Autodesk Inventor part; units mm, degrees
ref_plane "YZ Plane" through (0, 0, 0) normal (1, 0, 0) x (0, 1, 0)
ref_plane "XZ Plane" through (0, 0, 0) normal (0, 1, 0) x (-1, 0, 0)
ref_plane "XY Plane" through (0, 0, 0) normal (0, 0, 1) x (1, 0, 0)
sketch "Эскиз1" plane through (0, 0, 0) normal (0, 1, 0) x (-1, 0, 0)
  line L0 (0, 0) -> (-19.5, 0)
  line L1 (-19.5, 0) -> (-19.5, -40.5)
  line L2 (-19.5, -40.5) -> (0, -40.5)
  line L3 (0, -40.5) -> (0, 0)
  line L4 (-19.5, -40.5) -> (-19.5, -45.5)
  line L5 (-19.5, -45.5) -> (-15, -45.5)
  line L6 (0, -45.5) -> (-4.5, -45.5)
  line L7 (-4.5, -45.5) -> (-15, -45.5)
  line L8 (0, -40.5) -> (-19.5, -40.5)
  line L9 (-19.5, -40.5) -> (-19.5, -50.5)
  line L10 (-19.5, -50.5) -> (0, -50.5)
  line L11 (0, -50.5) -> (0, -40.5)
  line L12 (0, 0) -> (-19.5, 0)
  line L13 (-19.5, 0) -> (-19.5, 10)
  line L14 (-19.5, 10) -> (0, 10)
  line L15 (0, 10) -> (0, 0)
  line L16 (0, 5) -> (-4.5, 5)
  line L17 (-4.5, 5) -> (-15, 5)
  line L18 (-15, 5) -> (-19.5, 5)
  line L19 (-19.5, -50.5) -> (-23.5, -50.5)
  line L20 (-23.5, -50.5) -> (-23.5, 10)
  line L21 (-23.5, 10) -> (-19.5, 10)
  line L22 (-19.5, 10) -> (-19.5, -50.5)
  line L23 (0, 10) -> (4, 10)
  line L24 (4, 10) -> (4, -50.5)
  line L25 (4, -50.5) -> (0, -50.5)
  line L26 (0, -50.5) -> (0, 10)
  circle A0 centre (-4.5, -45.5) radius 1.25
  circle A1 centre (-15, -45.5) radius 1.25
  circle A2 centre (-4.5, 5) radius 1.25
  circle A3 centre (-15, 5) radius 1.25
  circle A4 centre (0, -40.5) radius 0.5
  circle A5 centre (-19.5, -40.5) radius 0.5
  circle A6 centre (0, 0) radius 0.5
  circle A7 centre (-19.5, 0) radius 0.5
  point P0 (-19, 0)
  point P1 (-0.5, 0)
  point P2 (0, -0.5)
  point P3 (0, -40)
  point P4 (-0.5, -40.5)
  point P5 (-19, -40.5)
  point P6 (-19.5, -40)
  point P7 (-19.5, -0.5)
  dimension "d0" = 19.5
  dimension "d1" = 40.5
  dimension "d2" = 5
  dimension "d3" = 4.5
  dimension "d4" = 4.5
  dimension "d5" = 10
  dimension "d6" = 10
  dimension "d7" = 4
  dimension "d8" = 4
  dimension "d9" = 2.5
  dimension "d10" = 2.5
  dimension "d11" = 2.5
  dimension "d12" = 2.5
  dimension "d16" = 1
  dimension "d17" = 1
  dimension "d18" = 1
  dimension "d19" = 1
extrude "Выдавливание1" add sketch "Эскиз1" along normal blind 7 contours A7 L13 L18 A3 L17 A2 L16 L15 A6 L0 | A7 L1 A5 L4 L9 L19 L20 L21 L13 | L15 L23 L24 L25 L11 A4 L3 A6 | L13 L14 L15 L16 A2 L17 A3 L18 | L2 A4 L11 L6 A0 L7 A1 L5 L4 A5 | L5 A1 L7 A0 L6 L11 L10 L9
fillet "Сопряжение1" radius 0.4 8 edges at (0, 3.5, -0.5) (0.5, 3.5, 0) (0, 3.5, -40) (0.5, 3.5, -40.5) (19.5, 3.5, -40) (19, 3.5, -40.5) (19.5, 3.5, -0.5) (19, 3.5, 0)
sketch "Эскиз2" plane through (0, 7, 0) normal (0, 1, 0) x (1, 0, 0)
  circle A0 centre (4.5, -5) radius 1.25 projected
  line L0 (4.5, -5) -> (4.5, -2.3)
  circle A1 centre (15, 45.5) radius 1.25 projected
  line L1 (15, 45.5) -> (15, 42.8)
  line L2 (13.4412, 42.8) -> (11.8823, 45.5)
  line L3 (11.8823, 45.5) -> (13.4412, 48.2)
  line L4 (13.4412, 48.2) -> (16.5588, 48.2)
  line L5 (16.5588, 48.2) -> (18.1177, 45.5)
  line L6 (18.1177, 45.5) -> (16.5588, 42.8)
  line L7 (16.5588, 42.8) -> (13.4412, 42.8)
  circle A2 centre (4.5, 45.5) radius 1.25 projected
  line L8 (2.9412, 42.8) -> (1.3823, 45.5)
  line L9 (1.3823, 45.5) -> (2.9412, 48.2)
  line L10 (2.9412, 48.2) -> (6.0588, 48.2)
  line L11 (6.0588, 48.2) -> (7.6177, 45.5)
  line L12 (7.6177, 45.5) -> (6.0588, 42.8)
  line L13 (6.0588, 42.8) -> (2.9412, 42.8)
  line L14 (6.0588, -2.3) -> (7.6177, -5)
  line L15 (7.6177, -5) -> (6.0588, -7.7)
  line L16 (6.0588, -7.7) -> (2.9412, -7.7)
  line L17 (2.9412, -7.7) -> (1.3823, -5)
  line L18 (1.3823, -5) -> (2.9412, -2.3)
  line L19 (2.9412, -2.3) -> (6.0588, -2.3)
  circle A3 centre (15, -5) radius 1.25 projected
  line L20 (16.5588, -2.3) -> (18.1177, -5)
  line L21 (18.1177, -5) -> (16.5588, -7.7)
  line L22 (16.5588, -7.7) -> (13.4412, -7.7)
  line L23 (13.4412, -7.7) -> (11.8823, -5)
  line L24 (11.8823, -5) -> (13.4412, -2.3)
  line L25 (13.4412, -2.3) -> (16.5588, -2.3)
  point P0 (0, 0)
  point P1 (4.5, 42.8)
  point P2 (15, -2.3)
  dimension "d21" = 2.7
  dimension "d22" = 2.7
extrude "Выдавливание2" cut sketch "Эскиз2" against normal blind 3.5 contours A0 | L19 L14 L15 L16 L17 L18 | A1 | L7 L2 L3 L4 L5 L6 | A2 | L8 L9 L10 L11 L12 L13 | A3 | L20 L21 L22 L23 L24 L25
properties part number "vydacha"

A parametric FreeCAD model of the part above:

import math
import FreeCAD as App
import Part
import Sketcher
from FreeCAD import Vector
Q = App.Units.Quantity


def edges_at(feature, points):
    """Names of the edges that pass closest to the given points."""
    edges = feature.Shape.Edges
    near = lambda p: min(range(len(edges)), key=lambda i: edges[i].distToShape(Part.Vertex(*p))[0])
    return sorted({f"Edge{near(p) + 1}" for p in points})

doc = App.newDocument("Part")
body = doc.addObject("PartDesign::Body", "Body")

sketch1 = doc.addObject("Sketcher::SketchObject", "Sketch")
body.addObject(sketch1)
sketch1.AttachmentSupport = (doc.XZ_Plane, [""])
sketch1.MapMode = "FlatFace"
sketch1.addGeometry(Part.LineSegment(Vector(23.5, -50.5, 0), Vector(-4, -50.5, 0)), False)
sketch1.addGeometry(Part.LineSegment(Vector(-4, -50.5, 0), Vector(-4, 10, 0)), False)
sketch1.addGeometry(Part.LineSegment(Vector(-4, 10, 0), Vector(23.5, 10, 0)), False)
sketch1.addGeometry(Part.LineSegment(Vector(23.5, 10, 0), Vector(23.5, -50.5, 0)), False)
sketch1.addGeometry(Part.LineSegment(Vector(19, 0, 0), Vector(0.5, 0, 0)), False)
sketch1.addGeometry(Part.ArcOfCircle(Part.Circle(Vector(0, 0, 0), Vector(0, 0, 1), 0.5), math.radians(0), math.radians(270)), False)
sketch1.addGeometry(Part.LineSegment(Vector(0, -0.5, 0), Vector(0, -40, 0)), False)
sketch1.addGeometry(Part.ArcOfCircle(Part.Circle(Vector(0, -40.5, 0), Vector(0, 0, 1), 0.5), math.radians(90), math.radians(360)), False)
sketch1.addGeometry(Part.LineSegment(Vector(0.5, -40.5, 0), Vector(19, -40.5, 0)), False)
sketch1.addGeometry(Part.ArcOfCircle(Part.Circle(Vector(19.5, -40.5, 0), Vector(0, 0, 1), 0.5), math.radians(180), math.radians(450)), False)
sketch1.addGeometry(Part.LineSegment(Vector(19.5, -40, 0), Vector(19.5, -0.5, 0)), False)
sketch1.addGeometry(Part.ArcOfCircle(Part.Circle(Vector(19.5, 0, 0), Vector(0, 0, 1), 0.5), math.radians(-90), math.radians(180)), False)
sketch1.addGeometry(Part.Circle(Vector(15, 5, 0), Vector(0, 0, 1), 1.25), False)
sketch1.addGeometry(Part.Circle(Vector(4.5, 5, 0), Vector(0, 0, 1), 1.25), False)
sketch1.addGeometry(Part.Circle(Vector(4.5, -45.5, 0), Vector(0, 0, 1), 1.25), False)
sketch1.addGeometry(Part.Circle(Vector(15, -45.5, 0), Vector(0, 0, 1), 1.25), False)
sketch1.addConstraint(Sketcher.Constraint("Coincident", 0, 2, 1, 1))
sketch1.addConstraint(Sketcher.Constraint("Coincident", 1, 2, 2, 1))
sketch1.addConstraint(Sketcher.Constraint("Coincident", 2, 2, 3, 1))
sketch1.addConstraint(Sketcher.Constraint("Coincident", 3, 2, 0, 1))
sketch1.addConstraint(Sketcher.Constraint("Coincident", 4, 2, 5, 1))
sketch1.addConstraint(Sketcher.Constraint("Coincident", 5, 2, 6, 1))
sketch1.addConstraint(Sketcher.Constraint("Coincident", 6, 2, 7, 1))
sketch1.addConstraint(Sketcher.Constraint("Coincident", 7, 2, 8, 1))
sketch1.addConstraint(Sketcher.Constraint("Coincident", 8, 2, 9, 1))
sketch1.addConstraint(Sketcher.Constraint("Coincident", 9, 2, 10, 1))
sketch1.addConstraint(Sketcher.Constraint("Coincident", 10, 2, 11, 1))
sketch1.addConstraint(Sketcher.Constraint("Coincident", 11, 2, 4, 1))
sketch1.addConstraint(Sketcher.Constraint("Horizontal", 0))
sketch1.addConstraint(Sketcher.Constraint("Vertical", 1))
sketch1.addConstraint(Sketcher.Constraint("Horizontal", 2))
sketch1.addConstraint(Sketcher.Constraint("Vertical", 3))
sketch1.addConstraint(Sketcher.Constraint("Horizontal", 4))
sketch1.addConstraint(Sketcher.Constraint("Vertical", 6))
sketch1.addConstraint(Sketcher.Constraint("Horizontal", 8))
sketch1.addConstraint(Sketcher.Constraint("Vertical", 10))
sketch1.addConstraint(Sketcher.Constraint("Coincident", 5, 3, -1, 1))
sketch1.addConstraint(Sketcher.Constraint("Equal", 5, 7))
sketch1.addConstraint(Sketcher.Constraint("Equal", 7, 9))
sketch1.addConstraint(Sketcher.Constraint("Equal", 9, 11))
sketch1.addConstraint(Sketcher.Constraint("Equal", 12, 13))
sketch1.addConstraint(Sketcher.Constraint("Equal", 13, 14))
sketch1.addConstraint(Sketcher.Constraint("Equal", 14, 15))
sketch1.addConstraint(Sketcher.Constraint("PointOnObject", 7, 3, -2))
sketch1.addConstraint(Sketcher.Constraint("PointOnObject", 11, 3, -1))
sketch1.addConstraint(Sketcher.Constraint("PointOnObject", 4, 2, -1))
sketch1.addConstraint(Sketcher.Constraint("PointOnObject", 5, 2, -2))
sketch1.addConstraint(Sketcher.Constraint("Horizontal", 7, 3, 9, 3))
sketch1.addConstraint(Sketcher.Constraint("Horizontal", 12, 3, 13, 3))
sketch1.addConstraint(Sketcher.Constraint("Horizontal", 14, 3, 15, 3))
sketch1.addConstraint(Sketcher.Constraint("Horizontal", 9, 3, 7, 2))
sketch1.addConstraint(Sketcher.Constraint("Vertical", 9, 3, 11, 3))
sketch1.addConstraint(Sketcher.Constraint("Vertical", 13, 3, 14, 3))
sketch1.addConstraint(Sketcher.Constraint("Vertical", 12, 3, 15, 3))
sketch1.addConstraint(Sketcher.Constraint("Vertical", 11, 3, 9, 2))
sketch1.addConstraint(Sketcher.Constraint("Diameter", 12, 2.5))
sketch1.addConstraint(Sketcher.Constraint("Radius", 5, 0.5))
sketch1.addConstraint(Sketcher.Constraint("DistanceY", -1, 1, 12, 3, 5.0))
sketch1.addConstraint(Sketcher.Constraint("DistanceX", 0, 2, -1, 1, 4.0))
sketch1.addConstraint(Sketcher.Constraint("DistanceY", -1, 1, 1, 2, 10.0))
sketch1.addConstraint(Sketcher.Constraint("DistanceY", 14, 3, 7, 3, 5.0))
sketch1.addConstraint(Sketcher.Constraint("DistanceY", 0, 2, 14, 3, 5.0))
sketch1.addConstraint(Sketcher.Constraint("DistanceX", 11, 3, 2, 2, 4.0))
sketch1.addConstraint(Sketcher.Constraint("DistanceX", 4, 2, 13, 3, 4.0))
sketch1.addConstraint(Sketcher.Constraint("DistanceX", 15, 3, 8, 2, 4.0))
sketch1.addConstraint(Sketcher.Constraint("DistanceY", 7, 3, -1, 1, 40.5))
sketch1.addConstraint(Sketcher.Constraint("DistanceX", -1, 1, 9, 3, 19.5))
pad1 = doc.addObject("PartDesign::Pad", "Pad")
body.addObject(pad1)
pad1.Profile = sketch1
pad1.Length = 7
pad1.Reversed = True
doc.recompute()

fillet = doc.addObject("PartDesign::Fillet", "Fillet")
body.addObject(fillet)
fillet.Base = (pad1, edges_at(pad1, [
    (0, 3.5, -0.5),
    (0.5, 3.5, 0),
    (0, 3.5, -40),
    (0.5, 3.5, -40.5),
    (19.5, 3.5, -40),
    (19, 3.5, -40.5),
    (19.5, 3.5, -0.5),
    (19, 3.5, 0),
]))
fillet.Radius = 0.4

sketch2 = doc.addObject("Sketcher::SketchObject", "Sketch001")
body.addObject(sketch2)
sketch2.AttachmentSupport = (doc.XZ_Plane, [""])
sketch2.MapMode = "FlatFace"
sketch2.AttachmentOffset = App.Placement(Vector(0, 0, -7), App.Rotation())
sketch2.addGeometry(Part.LineSegment(Vector(6.0588, 2.3, 0), Vector(4.5, 2.3, 0)), False)
sketch2.addGeometry(Part.LineSegment(Vector(4.5, 2.3, 0), Vector(2.9412, 2.3, 0)), False)
sketch2.addGeometry(Part.LineSegment(Vector(2.9412, 2.3, 0), Vector(1.3823, 5, 0)), False)
sketch2.addGeometry(Part.LineSegment(Vector(1.3823, 5, 0), Vector(2.9412, 7.7, 0)), False)
sketch2.addGeometry(Part.LineSegment(Vector(2.9412, 7.7, 0), Vector(6.0588, 7.7, 0)), False)
sketch2.addGeometry(Part.LineSegment(Vector(6.0588, 7.7, 0), Vector(7.6177, 5, 0)), False)
sketch2.addGeometry(Part.LineSegment(Vector(7.6177, 5, 0), Vector(6.0588, 2.3, 0)), False)
sketch2.addGeometry(Part.LineSegment(Vector(13.4412, -42.8, 0), Vector(15, -42.8, 0)), False)
sketch2.addGeometry(Part.LineSegment(Vector(15, -42.8, 0), Vector(16.5588, -42.8, 0)), False)
sketch2.addGeometry(Part.LineSegment(Vector(16.5588, -42.8, 0), Vector(18.1177, -45.5, 0)), False)
sketch2.addGeometry(Part.LineSegment(Vector(18.1177, -45.5, 0), Vector(16.5588, -48.2, 0)), False)
sketch2.addGeometry(Part.LineSegment(Vector(16.5588, -48.2, 0), Vector(13.4412, -48.2, 0)), False)
sketch2.addGeometry(Part.LineSegment(Vector(13.4412, -48.2, 0), Vector(11.8823, -45.5, 0)), False)
sketch2.addGeometry(Part.LineSegment(Vector(11.8823, -45.5, 0), Vector(13.4412, -42.8, 0)), False)
sketch2.addGeometry(Part.LineSegment(Vector(1.3823, -45.5, 0), Vector(2.9412, -42.8, 0)), False)
sketch2.addGeometry(Part.LineSegment(Vector(2.9412, -42.8, 0), Vector(6.0588, -42.8, 0)), False)
sketch2.addGeometry(Part.LineSegment(Vector(6.0588, -42.8, 0), Vector(7.6177, -45.5, 0)), False)
sketch2.addGeometry(Part.LineSegment(Vector(7.6177, -45.5, 0), Vector(6.0588, -48.2, 0)), False)
sketch2.addGeometry(Part.LineSegment(Vector(6.0588, -48.2, 0), Vector(2.9412, -48.2, 0)), False)
sketch2.addGeometry(Part.LineSegment(Vector(2.9412, -48.2, 0), Vector(1.3823, -45.5, 0)), False)
sketch2.addGeometry(Part.LineSegment(Vector(18.1177, 5, 0), Vector(16.5588, 2.3, 0)), False)
sketch2.addGeometry(Part.LineSegment(Vector(16.5588, 2.3, 0), Vector(13.4412, 2.3, 0)), False)
sketch2.addGeometry(Part.LineSegment(Vector(13.4412, 2.3, 0), Vector(11.8823, 5, 0)), False)
sketch2.addGeometry(Part.LineSegment(Vector(11.8823, 5, 0), Vector(13.4412, 7.7, 0)), False)
sketch2.addGeometry(Part.LineSegment(Vector(13.4412, 7.7, 0), Vector(16.5588, 7.7, 0)), False)
sketch2.addGeometry(Part.LineSegment(Vector(16.5588, 7.7, 0), Vector(18.1177, 5, 0)), False)
sketch2.addConstraint(Sketcher.Constraint("Coincident", 0, 2, 1, 1))
sketch2.addConstraint(Sketcher.Constraint("Coincident", 1, 2, 2, 1))
sketch2.addConstraint(Sketcher.Constraint("Coincident", 2, 2, 3, 1))
sketch2.addConstraint(Sketcher.Constraint("Coincident", 3, 2, 4, 1))
sketch2.addConstraint(Sketcher.Constraint("Coincident", 4, 2, 5, 1))
sketch2.addConstraint(Sketcher.Constraint("Coincident", 5, 2, 6, 1))
sketch2.addConstraint(Sketcher.Constraint("Coincident", 6, 2, 0, 1))
sketch2.addConstraint(Sketcher.Constraint("Coincident", 7, 2, 8, 1))
sketch2.addConstraint(Sketcher.Constraint("Coincident", 8, 2, 9, 1))
sketch2.addConstraint(Sketcher.Constraint("Coincident", 9, 2, 10, 1))
sketch2.addConstraint(Sketcher.Constraint("Coincident", 10, 2, 11, 1))
sketch2.addConstraint(Sketcher.Constraint("Coincident", 11, 2, 12, 1))
sketch2.addConstraint(Sketcher.Constraint("Coincident", 12, 2, 13, 1))
sketch2.addConstraint(Sketcher.Constraint("Coincident", 13, 2, 7, 1))
sketch2.addConstraint(Sketcher.Constraint("Coincident", 14, 2, 15, 1))
sketch2.addConstraint(Sketcher.Constraint("Coincident", 15, 2, 16, 1))
sketch2.addConstraint(Sketcher.Constraint("Coincident", 16, 2, 17, 1))
sketch2.addConstraint(Sketcher.Constraint("Coincident", 17, 2, 18, 1))
sketch2.addConstraint(Sketcher.Constraint("Coincident", 18, 2, 19, 1))
sketch2.addConstraint(Sketcher.Constraint("Coincident", 19, 2, 14, 1))
sketch2.addConstraint(Sketcher.Constraint("Coincident", 20, 2, 21, 1))
sketch2.addConstraint(Sketcher.Constraint("Coincident", 21, 2, 22, 1))
sketch2.addConstraint(Sketcher.Constraint("Coincident", 22, 2, 23, 1))
sketch2.addConstraint(Sketcher.Constraint("Coincident", 23, 2, 24, 1))
sketch2.addConstraint(Sketcher.Constraint("Coincident", 24, 2, 25, 1))
sketch2.addConstraint(Sketcher.Constraint("Coincident", 25, 2, 20, 1))
sketch2.addConstraint(Sketcher.Constraint("Horizontal", 0))
sketch2.addConstraint(Sketcher.Constraint("Horizontal", 1))
sketch2.addConstraint(Sketcher.Constraint("Horizontal", 4))
sketch2.addConstraint(Sketcher.Constraint("Horizontal", 7))
sketch2.addConstraint(Sketcher.Constraint("Horizontal", 8))
sketch2.addConstraint(Sketcher.Constraint("Horizontal", 11))
sketch2.addConstraint(Sketcher.Constraint("Horizontal", 15))
sketch2.addConstraint(Sketcher.Constraint("Horizontal", 18))
sketch2.addConstraint(Sketcher.Constraint("Horizontal", 21))
sketch2.addConstraint(Sketcher.Constraint("Horizontal", 24))
sketch2.addConstraint(Sketcher.Constraint("Parallel", 2, 5))
sketch2.addConstraint(Sketcher.Constraint("Parallel", 3, 6))
sketch2.addConstraint(Sketcher.Constraint("Parallel", 5, 9))
sketch2.addConstraint(Sketcher.Constraint("Parallel", 6, 10))
sketch2.addConstraint(Sketcher.Constraint("Parallel", 9, 12))
sketch2.addConstraint(Sketcher.Constraint("Parallel", 10, 13))
sketch2.addConstraint(Sketcher.Constraint("Parallel", 13, 14))
sketch2.addConstraint(Sketcher.Constraint("Parallel", 12, 16))
sketch2.addConstraint(Sketcher.Constraint("Parallel", 14, 17))
sketch2.addConstraint(Sketcher.Constraint("Parallel", 16, 19))
sketch2.addConstraint(Sketcher.Constraint("Parallel", 17, 20))
sketch2.addConstraint(Sketcher.Constraint("Parallel", 19, 22))
sketch2.addConstraint(Sketcher.Constraint("Parallel", 20, 23))
sketch2.addConstraint(Sketcher.Constraint("Parallel", 22, 25))
sketch2.addConstraint(Sketcher.Constraint("Horizontal", 2, 2, 5, 2))
sketch2.addConstraint(Sketcher.Constraint("Horizontal", 9, 2, 12, 2))
sketch2.addConstraint(Sketcher.Constraint("Horizontal", 13, 2, 14, 2))
sketch2.addConstraint(Sketcher.Constraint("Horizontal", 12, 2, 16, 2))
sketch2.addConstraint(Sketcher.Constraint("Horizontal", 11, 2, 17, 2))
sketch2.addConstraint(Sketcher.Constraint("Horizontal", 16, 2, 19, 2))
sketch2.addConstraint(Sketcher.Constraint("Horizontal", 6, 2, 20, 2))
sketch2.addConstraint(Sketcher.Constraint("Horizontal", 5, 2, 22, 2))
sketch2.addConstraint(Sketcher.Constraint("Horizontal", 4, 2, 23, 2))
sketch2.addConstraint(Sketcher.Constraint("Horizontal", 22, 2, 25, 2))
sketch2.addConstraint(Sketcher.Constraint("Vertical", 1, 2, 3, 2))
sketch2.addConstraint(Sketcher.Constraint("Vertical", 4, 2, 6, 2))
sketch2.addConstraint(Sketcher.Constraint("Vertical", 8, 2, 10, 2))
sketch2.addConstraint(Sketcher.Constraint("Vertical", 3, 2, 14, 2))
sketch2.addConstraint(Sketcher.Constraint("Vertical", 6, 2, 15, 2))
sketch2.addConstraint(Sketcher.Constraint("Vertical", 5, 2, 16, 2))
sketch2.addConstraint(Sketcher.Constraint("Vertical", 10, 2, 20, 2))
sketch2.addConstraint(Sketcher.Constraint("Vertical", 13, 2, 21, 2))
sketch2.addConstraint(Sketcher.Constraint("Equal", 0, 1))
sketch2.addConstraint(Sketcher.Constraint("Equal", 1, 7))
sketch2.addConstraint(Sketcher.Constraint("Equal", 7, 8))
sketch2.addConstraint(Sketcher.Constraint("DistanceY", 1, 2, 2, 2, 2.7))
sketch2.addConstraint(Sketcher.Constraint("Angle", 2, Q("120.0009 deg")))
sketch2.addConstraint(Sketcher.Constraint("DistanceY", -1, 1, 2, 2, 5.0))
sketch2.addConstraint(Sketcher.Constraint("DistanceX", -1, 1, 7, 2, 15.0))
sketch2.addConstraint(Sketcher.Constraint("DistanceX", -1, 1, 0, 2, 4.5))
sketch2.addConstraint(Sketcher.Constraint("DistanceY", 7, 2, -1, 1, 42.8))
sketch2.addConstraint(Sketcher.Constraint("DistanceX", 0, 2, 0, 1, 1.5588))
pocket1 = doc.addObject("PartDesign::Pocket", "Pocket")
body.addObject(pocket1)
pocket1.Profile = sketch2
pocket1.Length = 3.5
pocket1.Reversed = True

doc.recompute()
